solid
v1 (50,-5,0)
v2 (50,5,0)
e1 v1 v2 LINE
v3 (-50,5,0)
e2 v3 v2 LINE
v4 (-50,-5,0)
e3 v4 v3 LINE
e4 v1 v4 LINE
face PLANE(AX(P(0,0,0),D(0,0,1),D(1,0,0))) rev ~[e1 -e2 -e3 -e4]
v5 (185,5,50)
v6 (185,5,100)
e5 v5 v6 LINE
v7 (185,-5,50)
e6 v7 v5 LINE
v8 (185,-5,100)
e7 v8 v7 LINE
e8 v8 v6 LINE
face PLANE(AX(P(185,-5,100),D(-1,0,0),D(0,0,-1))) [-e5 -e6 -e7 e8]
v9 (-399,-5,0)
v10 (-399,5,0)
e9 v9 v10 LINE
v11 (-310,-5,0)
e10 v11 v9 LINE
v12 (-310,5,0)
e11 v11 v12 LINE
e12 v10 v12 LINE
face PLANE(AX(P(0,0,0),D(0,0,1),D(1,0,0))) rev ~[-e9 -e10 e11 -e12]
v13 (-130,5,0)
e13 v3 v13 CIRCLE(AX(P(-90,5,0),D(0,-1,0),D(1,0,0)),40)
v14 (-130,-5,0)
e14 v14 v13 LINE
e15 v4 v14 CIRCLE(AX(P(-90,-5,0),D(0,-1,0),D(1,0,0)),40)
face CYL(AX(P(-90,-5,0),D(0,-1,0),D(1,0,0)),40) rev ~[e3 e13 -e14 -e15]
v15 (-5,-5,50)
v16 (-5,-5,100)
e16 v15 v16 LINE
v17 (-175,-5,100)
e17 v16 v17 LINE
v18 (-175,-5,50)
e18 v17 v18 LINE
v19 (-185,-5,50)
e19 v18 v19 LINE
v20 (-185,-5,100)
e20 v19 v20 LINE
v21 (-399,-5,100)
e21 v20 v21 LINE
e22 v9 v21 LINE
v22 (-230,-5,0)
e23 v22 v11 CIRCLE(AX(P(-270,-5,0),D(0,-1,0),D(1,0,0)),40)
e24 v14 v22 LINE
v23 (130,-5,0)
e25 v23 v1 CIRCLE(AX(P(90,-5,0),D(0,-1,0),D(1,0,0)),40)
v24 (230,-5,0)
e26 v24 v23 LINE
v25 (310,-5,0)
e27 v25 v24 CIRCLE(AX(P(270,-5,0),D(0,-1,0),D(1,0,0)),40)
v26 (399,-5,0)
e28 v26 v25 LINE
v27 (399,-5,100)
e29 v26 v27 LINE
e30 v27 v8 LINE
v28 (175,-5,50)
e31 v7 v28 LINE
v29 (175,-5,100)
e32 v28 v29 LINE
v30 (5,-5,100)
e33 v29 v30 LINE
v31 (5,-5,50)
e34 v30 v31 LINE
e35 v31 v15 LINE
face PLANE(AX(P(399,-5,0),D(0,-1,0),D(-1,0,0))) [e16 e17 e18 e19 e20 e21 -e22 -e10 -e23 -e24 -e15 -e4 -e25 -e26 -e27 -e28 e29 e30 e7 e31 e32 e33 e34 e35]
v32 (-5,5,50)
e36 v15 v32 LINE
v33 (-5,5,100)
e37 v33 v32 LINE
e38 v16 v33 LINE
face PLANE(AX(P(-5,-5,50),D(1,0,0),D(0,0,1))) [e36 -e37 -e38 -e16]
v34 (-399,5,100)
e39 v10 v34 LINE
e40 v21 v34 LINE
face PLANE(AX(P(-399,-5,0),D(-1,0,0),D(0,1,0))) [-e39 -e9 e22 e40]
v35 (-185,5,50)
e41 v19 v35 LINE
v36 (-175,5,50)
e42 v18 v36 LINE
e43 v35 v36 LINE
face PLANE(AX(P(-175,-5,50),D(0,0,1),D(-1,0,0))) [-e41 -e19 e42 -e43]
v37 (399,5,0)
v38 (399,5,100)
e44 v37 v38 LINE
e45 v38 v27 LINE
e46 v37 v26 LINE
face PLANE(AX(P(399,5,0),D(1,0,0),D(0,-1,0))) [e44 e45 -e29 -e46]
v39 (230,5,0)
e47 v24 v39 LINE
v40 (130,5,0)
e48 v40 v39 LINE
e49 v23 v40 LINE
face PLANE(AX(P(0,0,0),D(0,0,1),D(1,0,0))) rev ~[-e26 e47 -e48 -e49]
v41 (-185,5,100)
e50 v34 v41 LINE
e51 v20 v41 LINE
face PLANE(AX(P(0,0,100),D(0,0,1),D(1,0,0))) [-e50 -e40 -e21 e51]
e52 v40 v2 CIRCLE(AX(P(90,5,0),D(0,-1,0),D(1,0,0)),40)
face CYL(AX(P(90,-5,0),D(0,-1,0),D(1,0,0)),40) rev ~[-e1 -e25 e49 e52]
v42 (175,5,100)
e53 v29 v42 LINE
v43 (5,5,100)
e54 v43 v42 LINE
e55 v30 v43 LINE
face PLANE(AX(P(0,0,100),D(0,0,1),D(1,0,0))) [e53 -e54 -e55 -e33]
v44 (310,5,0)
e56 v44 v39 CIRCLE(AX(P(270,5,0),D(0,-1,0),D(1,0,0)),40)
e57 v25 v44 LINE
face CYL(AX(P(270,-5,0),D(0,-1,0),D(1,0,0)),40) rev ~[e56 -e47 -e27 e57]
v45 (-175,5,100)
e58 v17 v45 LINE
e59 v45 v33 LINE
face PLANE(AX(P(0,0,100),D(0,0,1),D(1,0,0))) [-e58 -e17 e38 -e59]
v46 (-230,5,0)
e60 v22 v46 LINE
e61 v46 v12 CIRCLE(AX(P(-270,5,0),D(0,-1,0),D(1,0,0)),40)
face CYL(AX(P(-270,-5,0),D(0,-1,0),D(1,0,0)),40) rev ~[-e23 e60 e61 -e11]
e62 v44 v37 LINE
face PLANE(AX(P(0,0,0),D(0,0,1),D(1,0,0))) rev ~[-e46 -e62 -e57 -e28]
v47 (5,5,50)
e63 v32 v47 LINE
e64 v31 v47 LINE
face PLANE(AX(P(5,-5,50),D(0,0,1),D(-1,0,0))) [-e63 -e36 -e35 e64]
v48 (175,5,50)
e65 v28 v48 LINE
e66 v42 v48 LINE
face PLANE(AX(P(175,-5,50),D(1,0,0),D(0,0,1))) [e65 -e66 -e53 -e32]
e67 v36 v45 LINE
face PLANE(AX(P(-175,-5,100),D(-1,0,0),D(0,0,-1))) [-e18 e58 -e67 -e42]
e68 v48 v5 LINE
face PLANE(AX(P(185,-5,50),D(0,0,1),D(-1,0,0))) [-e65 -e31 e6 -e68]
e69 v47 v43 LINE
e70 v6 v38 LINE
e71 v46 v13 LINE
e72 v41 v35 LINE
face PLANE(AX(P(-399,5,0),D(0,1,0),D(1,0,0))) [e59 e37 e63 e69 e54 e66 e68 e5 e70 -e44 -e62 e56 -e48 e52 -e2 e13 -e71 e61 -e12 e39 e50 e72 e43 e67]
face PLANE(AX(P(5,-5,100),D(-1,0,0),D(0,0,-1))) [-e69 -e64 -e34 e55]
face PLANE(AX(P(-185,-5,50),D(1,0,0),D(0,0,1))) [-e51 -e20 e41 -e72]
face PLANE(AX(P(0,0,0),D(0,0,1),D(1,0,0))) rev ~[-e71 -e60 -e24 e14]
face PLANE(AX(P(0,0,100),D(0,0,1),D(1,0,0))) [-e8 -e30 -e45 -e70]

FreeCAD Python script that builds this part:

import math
import FreeCAD as App
import Part
import Sketcher


def add_polygon(sketch, points):
    """Adds a closed chain of lines whose ends are joined by coincident constraints."""
    first, n = sketch.GeometryCount, len(points)
    for a, b in zip(points, points[1:] + points[:1]):
        sketch.addGeometry(Part.LineSegment(App.Vector(*a, 0), App.Vector(*b, 0)), False)
    for i in range(n):
        sketch.addConstraint(Sketcher.Constraint("Coincident", first + i, 2, first + (i + 1) % n, 1))

doc = App.newDocument("Part")
body = doc.addObject("PartDesign::Body", "Body")

# Sketch on XY plane
sketch1 = doc.addObject("Sketcher::SketchObject", "Sketch")
body.addObject(sketch1)
sketch1.AttachmentSupport = (doc.XY_Plane, [""])
sketch1.MapMode = "FlatFace"
add_polygon(sketch1, [(399, 5), (-399, 5), (-399, -5), (399, -5)])  # lines 0-3
sketch1.addConstraint([
    Sketcher.Constraint("Horizontal", 0),
    Sketcher.Constraint("Vertical", 1),
    Sketcher.Constraint("Horizontal", 2),
    Sketcher.Constraint("Vertical", 3),
    Sketcher.Constraint("Symmetric", 0, 2, 2, 2, -1, 1),
    Sketcher.Constraint("DistanceX", 0, 2, 0, 1, 798.0),
    Sketcher.Constraint("DistanceY", 1, 2, 1, 1, 10.0),
])
pad1 = doc.addObject("PartDesign::Pad", "Pad")
body.addObject(pad1)
pad1.Profile = sketch1
pad1.Length = 100

# Sketch on XZ plane
sketch2 = doc.addObject("Sketcher::SketchObject", "Sketch001")
body.addObject(sketch2)
sketch2.AttachmentSupport = (doc.XZ_Plane, [""])
sketch2.MapMode = "FlatFace"
sketch2.AttachmentOffset = App.Placement(App.Vector(0, 0, 5), App.Rotation())
sketch2.addGeometry(Part.LineSegment(App.Vector(-130, 0, 0), App.Vector(-50, 0, 0)), False)  # 0
sketch2.addGeometry(Part.ArcOfCircle(Part.Circle(App.Vector(-90, 0, 0), App.Vector(0, 0, 1), 40), math.radians(0), math.radians(180)), False)  # 1
sketch2.addGeometry(Part.LineSegment(App.Vector(-310, 0, 0), App.Vector(-230, 0, 0)), False)  # 2
sketch2.addGeometry(Part.ArcOfCircle(Part.Circle(App.Vector(-270, 0, 0), App.Vector(0, 0, 1), 40), math.radians(0), math.radians(180)), False)  # 3
sketch2.addGeometry(Part.ArcOfCircle(Part.Circle(App.Vector(270, 0, 0), App.Vector(0, 0, 1), 40), math.radians(0), math.radians(180)), False)  # 4
sketch2.addGeometry(Part.LineSegment(App.Vector(230, 0, 0), App.Vector(310, 0, 0)), False)  # 5
sketch2.addGeometry(Part.ArcOfCircle(Part.Circle(App.Vector(90, 0, 0), App.Vector(0, 0, 1), 40), math.radians(0), math.radians(180)), False)  # 6
sketch2.addGeometry(Part.LineSegment(App.Vector(50, 0, 0), App.Vector(130, 0, 0)), False)  # 7
add_polygon(sketch2, [(185, 100), (175, 100), (175, 50), (185, 50)])  # lines 8-11
add_polygon(sketch2, [(5, 100), (-5, 100), (-5, 50), (5, 50)])  # lines 12-15
add_polygon(sketch2, [(-175, 50), (-175, 100), (-185, 100), (-185, 50)])  # lines 16-19
sketch2.addConstraint([
    Sketcher.Constraint("Coincident", 0, 1, 1, 2),
    Sketcher.Constraint("Coincident", 1, 1, 0, 2),
    Sketcher.Constraint("Coincident", 2, 1, 3, 2),
    Sketcher.Constraint("Coincident", 3, 1, 2, 2),
    Sketcher.Constraint("Coincident", 4, 1, 5, 2),
    Sketcher.Constraint("Coincident", 5, 1, 4, 2),
    Sketcher.Constraint("Coincident", 6, 1, 7, 2),
    Sketcher.Constraint("Coincident", 7, 1, 6, 2),
    Sketcher.Constraint("Horizontal", 0),
    Sketcher.Constraint("Horizontal", 2),
    Sketcher.Constraint("Horizontal", 5),
    Sketcher.Constraint("Horizontal", 7),
    Sketcher.Constraint("Horizontal", 8),
    Sketcher.Constraint("Vertical", 9),
    Sketcher.Constraint("Horizontal", 10),
    Sketcher.Constraint("Vertical", 11),
    Sketcher.Constraint("Horizontal", 12),
    Sketcher.Constraint("Vertical", 13),
    Sketcher.Constraint("Horizontal", 14),
    Sketcher.Constraint("Vertical", 15),
    Sketcher.Constraint("Vertical", 16),
    Sketcher.Constraint("Horizontal", 17),
    Sketcher.Constraint("Vertical", 18),
    Sketcher.Constraint("Horizontal", 19),
    Sketcher.Constraint("Equal", 1, 3),
    Sketcher.Constraint("Equal", 3, 4),
    Sketcher.Constraint("Equal", 4, 6),
    Sketcher.Constraint("Symmetric", 3, 3, 4, 3, -1, 1),
    Sketcher.Constraint("Symmetric", 1, 3, 6, 3, -1, 1),
    Sketcher.Constraint("Symmetric", 8, 2, 16, 2, -2),
    Sketcher.Constraint("Symmetric", 10, 2, 18, 2, -2),
    Sketcher.Constraint("PointOnObject", 1, 3, -1),
    Sketcher.Constraint("PointOnObject", 3, 3, -1),
    Sketcher.Constraint("PointOnObject", 0, 1, -1),
    Sketcher.Constraint("PointOnObject", 2, 1, -1),
    Sketcher.Constraint("PointOnObject", 4, 1, -1),
    Sketcher.Constraint("PointOnObject", 6, 1, -1),
    Sketcher.Constraint("Horizontal", 11, 2, 12, 2),
    Sketcher.Constraint("Horizontal", 10, 2, 13, 2),
    Sketcher.Constraint("Equal", 10, 12),
    Sketcher.Constraint("Radius", 1, 40.0),
    Sketcher.Constraint("DistanceX", 8, 2, 8, 1, 10.0),
    Sketcher.Constraint("DistanceY", 9, 2, 9, 1, 50.0),
    Sketcher.Constraint("DistanceX", 1, 3, -1, 1, 90.0),
    Sketcher.Constraint("DistanceY", -1, 1, 9, 2, 50.0),
    Sketcher.Constraint("DistanceX", 3, 3, 1, 3, 180.0),
    Sketcher.Constraint("DistanceX", -1, 1, 8, 2, 175.0),
    Sketcher.Constraint("DistanceX", 12, 2, -1, 1, 5.0),
])
pocket1 = doc.addObject("PartDesign::Pocket", "Pocket")
body.addObject(pocket1)
pocket1.Profile = sketch2
pocket1.Type = "ThroughAll"

doc.recompute()
